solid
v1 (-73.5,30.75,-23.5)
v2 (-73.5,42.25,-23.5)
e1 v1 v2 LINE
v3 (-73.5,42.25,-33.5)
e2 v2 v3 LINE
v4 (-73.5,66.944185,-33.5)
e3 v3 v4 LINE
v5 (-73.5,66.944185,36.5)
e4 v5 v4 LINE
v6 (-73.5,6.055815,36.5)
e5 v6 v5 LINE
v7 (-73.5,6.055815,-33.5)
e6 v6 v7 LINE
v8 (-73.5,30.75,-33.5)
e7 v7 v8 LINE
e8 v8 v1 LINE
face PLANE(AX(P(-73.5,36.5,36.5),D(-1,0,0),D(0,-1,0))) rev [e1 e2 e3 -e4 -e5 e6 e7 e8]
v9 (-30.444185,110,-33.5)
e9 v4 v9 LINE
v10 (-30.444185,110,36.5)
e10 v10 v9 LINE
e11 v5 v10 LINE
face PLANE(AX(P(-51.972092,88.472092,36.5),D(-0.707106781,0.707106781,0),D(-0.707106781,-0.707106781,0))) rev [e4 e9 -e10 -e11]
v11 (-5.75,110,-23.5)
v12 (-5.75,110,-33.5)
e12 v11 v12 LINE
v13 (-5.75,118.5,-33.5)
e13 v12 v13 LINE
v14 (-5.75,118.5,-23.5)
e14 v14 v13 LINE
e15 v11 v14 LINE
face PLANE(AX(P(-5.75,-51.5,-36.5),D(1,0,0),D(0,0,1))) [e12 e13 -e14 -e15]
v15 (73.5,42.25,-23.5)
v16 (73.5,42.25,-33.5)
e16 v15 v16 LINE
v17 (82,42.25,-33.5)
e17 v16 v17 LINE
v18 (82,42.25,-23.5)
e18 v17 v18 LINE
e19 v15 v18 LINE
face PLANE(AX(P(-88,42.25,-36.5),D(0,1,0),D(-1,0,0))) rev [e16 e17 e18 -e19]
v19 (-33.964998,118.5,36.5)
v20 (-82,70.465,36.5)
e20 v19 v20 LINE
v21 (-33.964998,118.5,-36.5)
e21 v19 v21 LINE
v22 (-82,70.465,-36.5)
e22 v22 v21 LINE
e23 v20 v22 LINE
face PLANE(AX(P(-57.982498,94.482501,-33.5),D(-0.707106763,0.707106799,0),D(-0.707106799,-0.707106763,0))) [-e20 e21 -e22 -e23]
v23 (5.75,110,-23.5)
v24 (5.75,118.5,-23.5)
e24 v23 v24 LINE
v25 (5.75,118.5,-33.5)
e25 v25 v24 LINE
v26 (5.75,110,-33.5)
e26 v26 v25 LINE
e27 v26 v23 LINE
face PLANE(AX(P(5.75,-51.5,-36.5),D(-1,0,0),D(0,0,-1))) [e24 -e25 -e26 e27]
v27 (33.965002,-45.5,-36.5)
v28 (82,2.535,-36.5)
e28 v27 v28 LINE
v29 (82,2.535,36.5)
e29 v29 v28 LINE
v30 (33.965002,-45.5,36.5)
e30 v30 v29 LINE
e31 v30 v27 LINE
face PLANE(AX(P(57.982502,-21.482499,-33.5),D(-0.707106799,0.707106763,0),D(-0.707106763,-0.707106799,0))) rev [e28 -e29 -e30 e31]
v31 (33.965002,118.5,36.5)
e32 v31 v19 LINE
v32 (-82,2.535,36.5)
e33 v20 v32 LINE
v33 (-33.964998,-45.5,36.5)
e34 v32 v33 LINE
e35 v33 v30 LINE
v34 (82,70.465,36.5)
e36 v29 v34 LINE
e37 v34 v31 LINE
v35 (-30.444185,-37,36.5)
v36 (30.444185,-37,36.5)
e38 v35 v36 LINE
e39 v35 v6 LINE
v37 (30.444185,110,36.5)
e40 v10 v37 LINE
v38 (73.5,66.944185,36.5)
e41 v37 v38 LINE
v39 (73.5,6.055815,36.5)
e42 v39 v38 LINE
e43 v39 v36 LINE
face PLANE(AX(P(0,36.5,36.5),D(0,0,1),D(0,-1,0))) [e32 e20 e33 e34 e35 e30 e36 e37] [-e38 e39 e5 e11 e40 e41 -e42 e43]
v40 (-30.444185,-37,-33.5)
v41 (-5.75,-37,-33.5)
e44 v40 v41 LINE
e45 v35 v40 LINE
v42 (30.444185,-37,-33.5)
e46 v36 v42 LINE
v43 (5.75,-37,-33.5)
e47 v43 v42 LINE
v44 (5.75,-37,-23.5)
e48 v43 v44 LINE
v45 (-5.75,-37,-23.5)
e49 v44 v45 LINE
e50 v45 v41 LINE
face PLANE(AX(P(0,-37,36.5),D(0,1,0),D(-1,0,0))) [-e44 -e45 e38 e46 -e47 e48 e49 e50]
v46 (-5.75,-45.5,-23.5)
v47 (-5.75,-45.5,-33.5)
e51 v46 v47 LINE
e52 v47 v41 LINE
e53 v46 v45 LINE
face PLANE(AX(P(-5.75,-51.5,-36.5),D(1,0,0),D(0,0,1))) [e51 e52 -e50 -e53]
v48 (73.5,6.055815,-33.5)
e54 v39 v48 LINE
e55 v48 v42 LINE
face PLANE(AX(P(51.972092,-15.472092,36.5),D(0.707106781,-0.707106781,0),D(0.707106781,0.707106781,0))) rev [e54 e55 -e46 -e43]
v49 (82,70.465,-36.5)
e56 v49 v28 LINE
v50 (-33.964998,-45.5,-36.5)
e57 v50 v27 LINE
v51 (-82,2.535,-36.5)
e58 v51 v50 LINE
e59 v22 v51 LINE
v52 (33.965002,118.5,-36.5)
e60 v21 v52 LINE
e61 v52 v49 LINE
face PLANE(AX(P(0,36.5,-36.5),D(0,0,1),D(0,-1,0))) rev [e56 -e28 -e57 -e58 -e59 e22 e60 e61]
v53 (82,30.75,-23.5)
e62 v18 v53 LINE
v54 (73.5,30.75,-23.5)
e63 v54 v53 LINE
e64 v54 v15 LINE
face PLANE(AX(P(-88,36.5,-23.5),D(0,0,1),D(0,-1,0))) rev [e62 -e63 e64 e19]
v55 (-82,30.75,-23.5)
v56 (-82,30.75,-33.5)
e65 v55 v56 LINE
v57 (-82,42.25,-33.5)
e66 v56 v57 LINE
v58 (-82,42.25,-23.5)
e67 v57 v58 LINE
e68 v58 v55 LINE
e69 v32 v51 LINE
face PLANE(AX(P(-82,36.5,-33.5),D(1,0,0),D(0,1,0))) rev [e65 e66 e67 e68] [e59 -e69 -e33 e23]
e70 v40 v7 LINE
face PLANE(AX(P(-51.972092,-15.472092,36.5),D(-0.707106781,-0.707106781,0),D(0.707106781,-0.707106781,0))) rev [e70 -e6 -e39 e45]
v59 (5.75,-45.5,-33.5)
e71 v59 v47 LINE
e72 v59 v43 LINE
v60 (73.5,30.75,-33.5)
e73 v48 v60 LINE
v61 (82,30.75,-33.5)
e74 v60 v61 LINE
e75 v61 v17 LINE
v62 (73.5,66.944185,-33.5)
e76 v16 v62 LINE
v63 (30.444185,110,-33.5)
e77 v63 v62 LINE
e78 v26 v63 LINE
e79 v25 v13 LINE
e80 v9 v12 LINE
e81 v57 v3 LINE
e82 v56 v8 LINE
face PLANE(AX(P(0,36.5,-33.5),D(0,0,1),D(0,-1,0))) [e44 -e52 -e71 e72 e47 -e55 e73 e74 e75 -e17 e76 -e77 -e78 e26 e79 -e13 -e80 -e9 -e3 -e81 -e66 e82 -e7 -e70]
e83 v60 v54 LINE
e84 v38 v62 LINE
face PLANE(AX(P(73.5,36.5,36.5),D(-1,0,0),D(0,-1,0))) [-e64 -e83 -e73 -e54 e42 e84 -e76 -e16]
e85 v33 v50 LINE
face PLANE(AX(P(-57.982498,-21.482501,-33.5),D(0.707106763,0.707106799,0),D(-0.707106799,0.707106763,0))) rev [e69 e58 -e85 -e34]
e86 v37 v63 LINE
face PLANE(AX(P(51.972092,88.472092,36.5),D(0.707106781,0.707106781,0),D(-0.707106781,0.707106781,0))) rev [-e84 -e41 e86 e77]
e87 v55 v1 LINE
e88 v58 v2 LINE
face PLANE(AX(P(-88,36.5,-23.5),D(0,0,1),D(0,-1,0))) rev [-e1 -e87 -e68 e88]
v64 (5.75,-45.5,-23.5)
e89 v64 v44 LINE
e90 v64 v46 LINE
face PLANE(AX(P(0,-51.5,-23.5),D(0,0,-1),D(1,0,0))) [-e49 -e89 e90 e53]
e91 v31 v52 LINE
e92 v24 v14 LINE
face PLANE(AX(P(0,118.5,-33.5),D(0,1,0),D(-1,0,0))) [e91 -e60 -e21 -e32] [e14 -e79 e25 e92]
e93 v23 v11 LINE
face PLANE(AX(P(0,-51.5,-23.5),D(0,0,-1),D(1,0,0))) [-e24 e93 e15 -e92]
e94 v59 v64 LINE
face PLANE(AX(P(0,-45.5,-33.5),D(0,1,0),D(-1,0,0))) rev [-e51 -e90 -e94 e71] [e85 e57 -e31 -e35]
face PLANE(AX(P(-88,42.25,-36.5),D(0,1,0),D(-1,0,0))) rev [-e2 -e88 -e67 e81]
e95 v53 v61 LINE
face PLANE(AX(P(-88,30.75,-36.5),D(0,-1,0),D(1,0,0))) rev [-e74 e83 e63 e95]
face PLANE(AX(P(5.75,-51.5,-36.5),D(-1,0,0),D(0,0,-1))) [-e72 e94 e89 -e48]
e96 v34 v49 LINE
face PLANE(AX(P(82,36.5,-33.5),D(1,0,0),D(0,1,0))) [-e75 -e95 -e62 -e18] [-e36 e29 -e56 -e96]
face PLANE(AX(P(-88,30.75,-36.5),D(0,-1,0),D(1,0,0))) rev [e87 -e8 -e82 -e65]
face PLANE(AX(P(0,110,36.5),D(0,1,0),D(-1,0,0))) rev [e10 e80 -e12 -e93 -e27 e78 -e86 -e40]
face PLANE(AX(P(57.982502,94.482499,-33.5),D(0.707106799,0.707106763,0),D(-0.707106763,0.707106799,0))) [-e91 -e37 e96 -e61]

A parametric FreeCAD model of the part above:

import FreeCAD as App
import Part
import Sketcher
Q = App.Units.Quantity

doc = App.newDocument("Part")
params = doc.addObject("Spreadsheet::Sheet", "Params")
for row, (alias, value) in enumerate([
    ("sketch1_width", "67.93 mm"),
    ("pad1_length", "3 mm"),
    ("sketch2_width", "67.93 mm"),
    ("pad2_length", "70 mm"),
    ("sketch3_width", "10 mm"),
    ("sketch3_height", "11.5 mm"),
    ("pocket1_length", "170 mm"),
    ("sketch4_height", "10 mm"),
    ("sketch4_width", "11.5 mm"),
    ("pocket2_length", "170 mm"),
], start=1):
    params.set(f"A{row}", alias)
    params.set(f"B{row}", "=" + value)
    params.setAlias(f"B{row}", alias)

body = doc.addObject("PartDesign::Body", "Body")

sketch1 = body.newObject("Sketcher::SketchObject", "Sketch")
sketch1.AttachmentSupport = (doc.getObject("XZ_Plane"), [""])
sketch1.MapMode = "FlatFace"
sketch1.addGeometry(Part.LineSegment(App.Vector(-82, 34, 0), App.Vector(-34, 82, 0)), False)
sketch1.addGeometry(Part.LineSegment(App.Vector(-34, 82, 0), App.Vector(34, 82, 0)), False)
sketch1.addGeometry(Part.LineSegment(App.Vector(34, 82, 0), App.Vector(82, 34, 0)), False)
sketch1.addGeometry(Part.LineSegment(App.Vector(82, 34, 0), App.Vector(82, -34, 0)), False)
sketch1.addGeometry(Part.LineSegment(App.Vector(82, -34, 0), App.Vector(34, -82, 0)), False)
sketch1.addGeometry(Part.LineSegment(App.Vector(34, -82, 0), App.Vector(-34, -82, 0)), False)
sketch1.addGeometry(Part.LineSegment(App.Vector(-34, -82, 0), App.Vector(-82, -34, 0)), False)
sketch1.addGeometry(Part.LineSegment(App.Vector(-82, -34, 0), App.Vector(-82, 34, 0)), False)
sketch1.addConstraint(Sketcher.Constraint("Coincident", 0, 2, 1, 1))
sketch1.addConstraint(Sketcher.Constraint("Coincident", 1, 2, 2, 1))
sketch1.addConstraint(Sketcher.Constraint("Coincident", 2, 2, 3, 1))
sketch1.addConstraint(Sketcher.Constraint("Coincident", 3, 2, 4, 1))
sketch1.addConstraint(Sketcher.Constraint("Coincident", 4, 2, 5, 1))
sketch1.addConstraint(Sketcher.Constraint("Coincident", 5, 2, 6, 1))
sketch1.addConstraint(Sketcher.Constraint("Coincident", 6, 2, 7, 1))
sketch1.addConstraint(Sketcher.Constraint("Coincident", 7, 2, 0, 1))
sketch1.addConstraint(Sketcher.Constraint("Horizontal", 1))
sketch1.addConstraint(Sketcher.Constraint("Vertical", 3))
sketch1.addConstraint(Sketcher.Constraint("Horizontal", 5))
sketch1.addConstraint(Sketcher.Constraint("Vertical", 7))
sketch1.addConstraint(Sketcher.Constraint("Symmetric", 0, 2, 4, 2, -1, 1))
sketch1.addConstraint(Sketcher.Constraint("Symmetric", 2, 2, 6, 2, -1, 1))
sketch1.addConstraint(Sketcher.Constraint("Perpendicular", 0, 2))
sketch1.addConstraint(Sketcher.Constraint("Perpendicular", 2, 4))
sketch1.addConstraint(Sketcher.Constraint("Perpendicular", 4, 6))
sketch1.addConstraint(Sketcher.Constraint("Horizontal", 3, 2, 6, 2))
sketch1.addConstraint(Sketcher.Constraint("Vertical", 1, 2, 4, 2))
sketch1.addConstraint(Sketcher.Constraint("Equal", 5, 3))
sketch1.addConstraint(Sketcher.Constraint("DistanceY", -1, 1, 0, 2, Q("82 mm")))
sketch1.addConstraint(Sketcher.Constraint("DistanceX", 1, 1, 1, 2, Q("67.93 mm")))
sketch1.setExpression("Constraints[21]", "Params.sketch1_width")
pad1 = body.newObject("PartDesign::Pad", "Pad")
pad1.Profile = sketch1
pad1.setExpression("Length", "Params.pad1_length")
pad1.Reversed = True

sketch2 = body.newObject("Sketcher::SketchObject", "Sketch001")
sketch2.AttachmentSupport = (doc.getObject("XZ_Plane"), [""])
sketch2.MapMode = "FlatFace"
sketch2.AttachmentOffset = App.Placement(App.Vector(0, 0, -3), App.Rotation())
sketch2.addGeometry(Part.LineSegment(App.Vector(34, 82, 0), App.Vector(82, 34, 0)), False)
sketch2.addGeometry(Part.LineSegment(App.Vector(82, 34, 0), App.Vector(82, -34, 0)), False)
sketch2.addGeometry(Part.LineSegment(App.Vector(82, -34, 0), App.Vector(34, -82, 0)), False)
sketch2.addGeometry(Part.LineSegment(App.Vector(34, -82, 0), App.Vector(-34, -82, 0)), False)
sketch2.addGeometry(Part.LineSegment(App.Vector(-34, -82, 0), App.Vector(-82, -34, 0)), False)
sketch2.addGeometry(Part.LineSegment(App.Vector(-82, -34, 0), App.Vector(-82, 34, 0)), False)
sketch2.addGeometry(Part.LineSegment(App.Vector(-82, 34, 0), App.Vector(-34, 82, 0)), False)
sketch2.addGeometry(Part.LineSegment(App.Vector(-34, 82, 0), App.Vector(34, 82, 0)), False)
sketch2.addGeometry(Part.LineSegment(App.Vector(-74, -30, 0), App.Vector(-30, -74, 0)), False)
sketch2.addGeometry(Part.LineSegment(App.Vector(-30, -74, 0), App.Vector(30, -74, 0)), False)
sketch2.addGeometry(Part.LineSegment(App.Vector(30, -74, 0), App.Vector(74, -30, 0)), False)
sketch2.addGeometry(Part.LineSegment(App.Vector(74, -30, 0), App.Vector(74, 30, 0)), False)
sketch2.addGeometry(Part.LineSegment(App.Vector(74, 30, 0), App.Vector(30, 74, 0)), False)
sketch2.addGeometry(Part.LineSegment(App.Vector(30, 74, 0), App.Vector(-30, 74, 0)), False)
sketch2.addGeometry(Part.LineSegment(App.Vector(-30, 74, 0), App.Vector(-74, 30, 0)), False)
sketch2.addGeometry(Part.LineSegment(App.Vector(-74, 30, 0), App.Vector(-74, -30, 0)), False)
sketch2.addConstraint(Sketcher.Constraint("Coincident", 0, 2, 1, 1))
sketch2.addConstraint(Sketcher.Constraint("Coincident", 1, 2, 2, 1))
sketch2.addConstraint(Sketcher.Constraint("Coincident", 2, 2, 3, 1))
sketch2.addConstraint(Sketcher.Constraint("Coincident", 3, 2, 4, 1))
sketch2.addConstraint(Sketcher.Constraint("Coincident", 4, 2, 5, 1))
sketch2.addConstraint(Sketcher.Constraint("Coincident", 5, 2, 6, 1))
sketch2.addConstraint(Sketcher.Constraint("Coincident", 6, 2, 7, 1))
sketch2.addConstraint(Sketcher.Constraint("Coincident", 7, 2, 0, 1))
sketch2.addConstraint(Sketcher.Constraint("Coincident", 8, 2, 9, 1))
sketch2.addConstraint(Sketcher.Constraint("Coincident", 9, 2, 10, 1))
sketch2.addConstraint(Sketcher.Constraint("Coincident", 10, 2, 11, 1))
sketch2.addConstraint(Sketcher.Constraint("Coincident", 11, 2, 12, 1))
sketch2.addConstraint(Sketcher.Constraint("Coincident", 12, 2, 13, 1))
sketch2.addConstraint(Sketcher.Constraint("Coincident", 13, 2, 14, 1))
sketch2.addConstraint(Sketcher.Constraint("Coincident", 14, 2, 15, 1))
sketch2.addConstraint(Sketcher.Constraint("Coincident", 15, 2, 8, 1))
sketch2.addConstraint(Sketcher.Constraint("Vertical", 1))
sketch2.addConstraint(Sketcher.Constraint("Horizontal", 3))
sketch2.addConstraint(Sketcher.Constraint("Vertical", 5))
sketch2.addConstraint(Sketcher.Constraint("Horizontal", 7))
sketch2.addConstraint(Sketcher.Constraint("Horizontal", 9))
sketch2.addConstraint(Sketcher.Constraint("Vertical", 11))
sketch2.addConstraint(Sketcher.Constraint("Horizontal", 13))
sketch2.addConstraint(Sketcher.Constraint("Vertical", 15))
sketch2.addConstraint(Sketcher.Constraint("Symmetric", 0, 2, 4, 2, -1, 1))
sketch2.addConstraint(Sketcher.Constraint("Symmetric", 2, 2, 6, 2, -1, 1))
sketch2.addConstraint(Sketcher.Constraint("Symmetric", 8, 2, 12, 2, -1, 1))
sketch2.addConstraint(Sketcher.Constraint("Symmetric", 10, 2, 14, 2, -1, 1))
sketch2.addConstraint(Sketcher.Constraint("Perpendicular", 0, 2))
sketch2.addConstraint(Sketcher.Constraint("Perpendicular", 2, 4))
sketch2.addConstraint(Sketcher.Constraint("Perpendicular", 4, 6))
sketch2.addConstraint(Sketcher.Constraint("Perpendicular", 6, 8))
sketch2.addConstraint(Sketcher.Constraint("Perpendicular", 8, 10))
sketch2.addConstraint(Sketcher.Constraint("Perpendicular", 10, 12))
sketch2.addConstraint(Sketcher.Constraint("Perpendicular", 12, 14))
sketch2.addConstraint(Sketcher.Constraint("Horizontal", 1, 2, 4, 2))
sketch2.addConstraint(Sketcher.Constraint("Horizontal", 11, 2, 14, 2))
sketch2.addConstraint(Sketcher.Constraint("Vertical", 3, 2, 6, 2))
sketch2.addConstraint(Sketcher.Constraint("Equal", 7, 1))
sketch2.addConstraint(Sketcher.Constraint("Equal", 13, 11))
sketch2.addConstraint(Sketcher.Constraint("DistanceX", -1, 1, 0, 2, Q("82 mm")))
sketch2.addConstraint(Sketcher.Constraint("DistanceX", 3, 2, 3, 1, Q("67.93 mm")))
sketch2.addConstraint(Sketcher.Constraint("DistanceY", 8, 2, -1, 1, Q("73.5 mm")))
sketch2.addConstraint(Sketcher.Constraint("DistanceX", 9, 1, 9, 2, Q("60.888369 mm")))
sketch2.setExpression("Constraints[41]", "Params.sketch2_width")
pad2 = body.newObject("PartDesign::Pad", "Pad001")
pad2.Profile = sketch2
pad2.setExpression("Length", "Params.pad2_length")
pad2.Reversed = True

sketch3 = body.newObject("Sketcher::SketchObject", "Sketch002")
sketch3.AttachmentSupport = (doc.getObject("YZ_Plane"), [""])
sketch3.MapMode = "FlatFace"
sketch3.AttachmentOffset = App.Placement(App.Vector(0, 0, 82), App.Rotation())
sketch3.addGeometry(Part.LineSegment(App.Vector(13, 6, 0), App.Vector(3, 6, 0)), False)
sketch3.addGeometry(Part.LineSegment(App.Vector(3, 6, 0), App.Vector(3, -6, 0)), False)
sketch3.addGeometry(Part.LineSegment(App.Vector(3, -6, 0), App.Vector(13, -6, 0)), False)
sketch3.addGeometry(Part.LineSegment(App.Vector(13, -6, 0), App.Vector(13, 6, 0)), False)
sketch3.addConstraint(Sketcher.Constraint("Coincident", 0, 2, 1, 1))
sketch3.addConstraint(Sketcher.Constraint("Coincident", 1, 2, 2, 1))
sketch3.addConstraint(Sketcher.Constraint("Coincident", 2, 2, 3, 1))
sketch3.addConstraint(Sketcher.Constraint("Coincident", 3, 2, 0, 1))
sketch3.addConstraint(Sketcher.Constraint("Horizontal", 0))
sketch3.addConstraint(Sketcher.Constraint("Vertical", 1))
sketch3.addConstraint(Sketcher.Constraint("Horizontal", 2))
sketch3.addConstraint(Sketcher.Constraint("Vertical", 3))
sketch3.addConstraint(Sketcher.Constraint("DistanceX", 0, 2, 0, 1, Q("10 mm")))
sketch3.addConstraint(Sketcher.Constraint("DistanceY", 1, 2, 1, 1, Q("11.5 mm")))
sketch3.addConstraint(Sketcher.Constraint("DistanceX", -1, 1, 0, 2, Q("3 mm")))
sketch3.addConstraint(Sketcher.Constraint("DistanceY", -1, 1, 0, 2, Q("5.75 mm")))
sketch3.setExpression("Constraints[8]", "Params.sketch3_width")
sketch3.setExpression("Constraints[9]", "Params.sketch3_height")
pocket1 = body.newObject("PartDesign::Pocket", "Pocket")
pocket1.Profile = sketch3
pocket1.setExpression("Length", "Params.pocket1_length")

sketch4 = body.newObject("Sketcher::SketchObject", "Sketch003")
sketch4.AttachmentSupport = (doc.getObject("XY_Plane"), [""])
sketch4.MapMode = "FlatFace"
sketch4.AttachmentOffset = App.Placement(App.Vector(0, 0, -82), App.Rotation())
sketch4.addGeometry(Part.LineSegment(App.Vector(6, 13, 0), App.Vector(6, 3, 0)), False)
sketch4.addGeometry(Part.LineSegment(App.Vector(6, 3, 0), App.Vector(-6, 3, 0)), False)
sketch4.addGeometry(Part.LineSegment(App.Vector(-6, 3, 0), App.Vector(-6, 13, 0)), False)
sketch4.addGeometry(Part.LineSegment(App.Vector(-6, 13, 0), App.Vector(6, 13, 0)), False)
sketch4.addConstraint(Sketcher.Constraint("Coincident", 0, 2, 1, 1))
sketch4.addConstraint(Sketcher.Constraint("Coincident", 1, 2, 2, 1))
sketch4.addConstraint(Sketcher.Constraint("Coincident", 2, 2, 3, 1))
sketch4.addConstraint(Sketcher.Constraint("Coincident", 3, 2, 0, 1))
sketch4.addConstraint(Sketcher.Constraint("Vertical", 0))
sketch4.addConstraint(Sketcher.Constraint("Horizontal", 1))
sketch4.addConstraint(Sketcher.Constraint("Vertical", 2))
sketch4.addConstraint(Sketcher.Constraint("Horizontal", 3))
sketch4.addConstraint(Sketcher.Constraint("DistanceY", 0, 2, 0, 1, Q("10 mm")))
sketch4.addConstraint(Sketcher.Constraint("DistanceX", 1, 2, 1, 1, Q("11.5 mm")))
sketch4.addConstraint(Sketcher.Constraint("DistanceY", -1, 1, 0, 2, Q("3 mm")))
sketch4.addConstraint(Sketcher.Constraint("DistanceX", -1, 1, 0, 2, Q("5.75 mm")))
sketch4.setExpression("Constraints[8]", "Params.sketch4_height")
sketch4.setExpression("Constraints[9]", "Params.sketch4_width")
pocket2 = body.newObject("PartDesign::Pocket", "Pocket001")
pocket2.Profile = sketch4
pocket2.setExpression("Length", "Params.pocket2_length")
pocket2.Reversed = True
body2 = doc.addObject("PartDesign::Body", "Body001")
doc.recompute()

body.Placement = App.Placement(App.Vector(0, 36.5, -36.5), App.Rotation(App.Vector(1, 0, 0), 90))
boolean = body2.newObject("PartDesign::Boolean", "Boolean")
boolean.Type = "Fuse"
boolean.addObjects([body])

doc.recompute()
